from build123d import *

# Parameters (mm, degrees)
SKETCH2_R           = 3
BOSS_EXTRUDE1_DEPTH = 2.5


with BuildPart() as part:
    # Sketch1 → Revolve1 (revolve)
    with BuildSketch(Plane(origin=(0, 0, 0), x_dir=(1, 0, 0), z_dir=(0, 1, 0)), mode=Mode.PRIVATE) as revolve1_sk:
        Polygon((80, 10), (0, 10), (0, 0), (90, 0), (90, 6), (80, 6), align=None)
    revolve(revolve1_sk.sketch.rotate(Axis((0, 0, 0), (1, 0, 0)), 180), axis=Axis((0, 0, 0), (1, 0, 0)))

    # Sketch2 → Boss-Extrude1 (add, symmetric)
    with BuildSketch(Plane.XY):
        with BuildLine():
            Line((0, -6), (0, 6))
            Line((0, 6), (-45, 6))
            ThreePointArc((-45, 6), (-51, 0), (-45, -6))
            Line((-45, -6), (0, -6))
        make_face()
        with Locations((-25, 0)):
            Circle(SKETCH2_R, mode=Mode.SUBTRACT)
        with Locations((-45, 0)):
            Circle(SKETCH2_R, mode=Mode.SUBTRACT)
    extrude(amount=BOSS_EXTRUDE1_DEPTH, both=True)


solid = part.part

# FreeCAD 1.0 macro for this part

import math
import FreeCAD as App
import Part
import Sketcher
Q = App.Units.Quantity


def add_polygon(sketch, points):
    """Adds a closed chain of lines whose ends are joined by coincident constraints."""
    first, n = sketch.GeometryCount, len(points)
    for a, b in zip(points, points[1:] + points[:1]):
        sketch.addGeometry(Part.LineSegment(App.Vector(*a, 0), App.Vector(*b, 0)), False)
    for i in range(n):
        sketch.addConstraint(Sketcher.Constraint("Coincident", first + i, 2, first + (i + 1) % n, 1))

doc = App.newDocument("Part")
body = doc.addObject("PartDesign::Body", "Body")

sketch1 = body.newObject("Sketcher::SketchObject", "Sketch")
sketch1.AttachmentSupport = (doc.getObject("XZ_Plane"), [""])
sketch1.MapMode = "FlatFace"
add_polygon(sketch1, [(80, -10), (0, -10), (0, 0), (90, 0), (90, -6), (80, -6)])
sketch1.addConstraint([
    Sketcher.Constraint("Horizontal", 0),
    Sketcher.Constraint("Vertical", 1),
    Sketcher.Constraint("Horizontal", 2),
    Sketcher.Constraint("Vertical", 3),
    Sketcher.Constraint("Horizontal", 4),
    Sketcher.Constraint("Vertical", 5),
    Sketcher.Constraint("Coincident", 1, 2, -1, 1),
    Sketcher.Constraint("Equal", 4, 1),
    Sketcher.Constraint("DistanceX", 0, 2, 0, 1, Q("80 mm")),
    Sketcher.Constraint("DistanceX", 2, 1, 2, 2, Q("90 mm")),
    Sketcher.Constraint("DistanceY", 3, 2, 3, 1, Q("6 mm")),
])
revolution = body.newObject("PartDesign::Revolution", "Revolution")
revolution.Profile = sketch1
revolution.ReferenceAxis = (sketch1, ["H_Axis"])
revolution.Angle = 360

sketch2 = body.newObject("Sketcher::SketchObject", "Sketch001")
sketch2.AttachmentSupport = (doc.getObject("XY_Plane"), [""])
sketch2.MapMode = "FlatFace"
sketch2.addGeometry([
    Part.LineSegment(App.Vector(0, -6, 0), App.Vector(0, 6, 0)),
    Part.LineSegment(App.Vector(0, 6, 0), App.Vector(-45, 6, 0)),
    Part.ArcOfCircle(Part.Circle(App.Vector(-45, 0, 0), App.Vector(0, 0, 1), 6), math.radians(90), math.radians(270)),
    Part.LineSegment(App.Vector(-45, -6, 0), App.Vector(0, -6, 0)),
    Part.Circle(App.Vector(-45, 0, 0), App.Vector(0, 0, 1), 3),
    Part.Circle(App.Vector(-25, 0, 0), App.Vector(0, 0, 1), 3),
], False)
sketch2.addConstraint([
    Sketcher.Constraint("Coincident", 0, 2, 1, 1),
    Sketcher.Constraint("Tangent", 1, 2, 2, 1),
    Sketcher.Constraint("Tangent", 2, 2, 3, 1),
    Sketcher.Constraint("Coincident", 3, 2, 0, 1),
    Sketcher.Constraint("Vertical", 0),
    Sketcher.Constraint("Horizontal", 1),
    Sketcher.Constraint("Horizontal", 3),
    Sketcher.Constraint("Coincident", 4, 3, 2, 3),
    Sketcher.Constraint("Equal", 4, 5),
    Sketcher.Constraint("Symmetric", 0, 2, 3, 2, -1, 1),
    Sketcher.Constraint("PointOnObject", 5, 3, -1),
    Sketcher.Constraint("Diameter", 4, Q("6 mm")),
    Sketcher.Constraint("Radius", 2, Q("6 mm")),
    Sketcher.Constraint("DistanceX", 1, 2, 1, 1, Q("45 mm")),
    Sketcher.Constraint("DistanceX", 5, 3, -1, 1, Q("25 mm")),
])
pad1 = body.newObject("PartDesign::Pad", "Pad")
pad1.Profile = sketch2
pad1.Length = 5
pad1.Midplane = True

doc.recompute()
